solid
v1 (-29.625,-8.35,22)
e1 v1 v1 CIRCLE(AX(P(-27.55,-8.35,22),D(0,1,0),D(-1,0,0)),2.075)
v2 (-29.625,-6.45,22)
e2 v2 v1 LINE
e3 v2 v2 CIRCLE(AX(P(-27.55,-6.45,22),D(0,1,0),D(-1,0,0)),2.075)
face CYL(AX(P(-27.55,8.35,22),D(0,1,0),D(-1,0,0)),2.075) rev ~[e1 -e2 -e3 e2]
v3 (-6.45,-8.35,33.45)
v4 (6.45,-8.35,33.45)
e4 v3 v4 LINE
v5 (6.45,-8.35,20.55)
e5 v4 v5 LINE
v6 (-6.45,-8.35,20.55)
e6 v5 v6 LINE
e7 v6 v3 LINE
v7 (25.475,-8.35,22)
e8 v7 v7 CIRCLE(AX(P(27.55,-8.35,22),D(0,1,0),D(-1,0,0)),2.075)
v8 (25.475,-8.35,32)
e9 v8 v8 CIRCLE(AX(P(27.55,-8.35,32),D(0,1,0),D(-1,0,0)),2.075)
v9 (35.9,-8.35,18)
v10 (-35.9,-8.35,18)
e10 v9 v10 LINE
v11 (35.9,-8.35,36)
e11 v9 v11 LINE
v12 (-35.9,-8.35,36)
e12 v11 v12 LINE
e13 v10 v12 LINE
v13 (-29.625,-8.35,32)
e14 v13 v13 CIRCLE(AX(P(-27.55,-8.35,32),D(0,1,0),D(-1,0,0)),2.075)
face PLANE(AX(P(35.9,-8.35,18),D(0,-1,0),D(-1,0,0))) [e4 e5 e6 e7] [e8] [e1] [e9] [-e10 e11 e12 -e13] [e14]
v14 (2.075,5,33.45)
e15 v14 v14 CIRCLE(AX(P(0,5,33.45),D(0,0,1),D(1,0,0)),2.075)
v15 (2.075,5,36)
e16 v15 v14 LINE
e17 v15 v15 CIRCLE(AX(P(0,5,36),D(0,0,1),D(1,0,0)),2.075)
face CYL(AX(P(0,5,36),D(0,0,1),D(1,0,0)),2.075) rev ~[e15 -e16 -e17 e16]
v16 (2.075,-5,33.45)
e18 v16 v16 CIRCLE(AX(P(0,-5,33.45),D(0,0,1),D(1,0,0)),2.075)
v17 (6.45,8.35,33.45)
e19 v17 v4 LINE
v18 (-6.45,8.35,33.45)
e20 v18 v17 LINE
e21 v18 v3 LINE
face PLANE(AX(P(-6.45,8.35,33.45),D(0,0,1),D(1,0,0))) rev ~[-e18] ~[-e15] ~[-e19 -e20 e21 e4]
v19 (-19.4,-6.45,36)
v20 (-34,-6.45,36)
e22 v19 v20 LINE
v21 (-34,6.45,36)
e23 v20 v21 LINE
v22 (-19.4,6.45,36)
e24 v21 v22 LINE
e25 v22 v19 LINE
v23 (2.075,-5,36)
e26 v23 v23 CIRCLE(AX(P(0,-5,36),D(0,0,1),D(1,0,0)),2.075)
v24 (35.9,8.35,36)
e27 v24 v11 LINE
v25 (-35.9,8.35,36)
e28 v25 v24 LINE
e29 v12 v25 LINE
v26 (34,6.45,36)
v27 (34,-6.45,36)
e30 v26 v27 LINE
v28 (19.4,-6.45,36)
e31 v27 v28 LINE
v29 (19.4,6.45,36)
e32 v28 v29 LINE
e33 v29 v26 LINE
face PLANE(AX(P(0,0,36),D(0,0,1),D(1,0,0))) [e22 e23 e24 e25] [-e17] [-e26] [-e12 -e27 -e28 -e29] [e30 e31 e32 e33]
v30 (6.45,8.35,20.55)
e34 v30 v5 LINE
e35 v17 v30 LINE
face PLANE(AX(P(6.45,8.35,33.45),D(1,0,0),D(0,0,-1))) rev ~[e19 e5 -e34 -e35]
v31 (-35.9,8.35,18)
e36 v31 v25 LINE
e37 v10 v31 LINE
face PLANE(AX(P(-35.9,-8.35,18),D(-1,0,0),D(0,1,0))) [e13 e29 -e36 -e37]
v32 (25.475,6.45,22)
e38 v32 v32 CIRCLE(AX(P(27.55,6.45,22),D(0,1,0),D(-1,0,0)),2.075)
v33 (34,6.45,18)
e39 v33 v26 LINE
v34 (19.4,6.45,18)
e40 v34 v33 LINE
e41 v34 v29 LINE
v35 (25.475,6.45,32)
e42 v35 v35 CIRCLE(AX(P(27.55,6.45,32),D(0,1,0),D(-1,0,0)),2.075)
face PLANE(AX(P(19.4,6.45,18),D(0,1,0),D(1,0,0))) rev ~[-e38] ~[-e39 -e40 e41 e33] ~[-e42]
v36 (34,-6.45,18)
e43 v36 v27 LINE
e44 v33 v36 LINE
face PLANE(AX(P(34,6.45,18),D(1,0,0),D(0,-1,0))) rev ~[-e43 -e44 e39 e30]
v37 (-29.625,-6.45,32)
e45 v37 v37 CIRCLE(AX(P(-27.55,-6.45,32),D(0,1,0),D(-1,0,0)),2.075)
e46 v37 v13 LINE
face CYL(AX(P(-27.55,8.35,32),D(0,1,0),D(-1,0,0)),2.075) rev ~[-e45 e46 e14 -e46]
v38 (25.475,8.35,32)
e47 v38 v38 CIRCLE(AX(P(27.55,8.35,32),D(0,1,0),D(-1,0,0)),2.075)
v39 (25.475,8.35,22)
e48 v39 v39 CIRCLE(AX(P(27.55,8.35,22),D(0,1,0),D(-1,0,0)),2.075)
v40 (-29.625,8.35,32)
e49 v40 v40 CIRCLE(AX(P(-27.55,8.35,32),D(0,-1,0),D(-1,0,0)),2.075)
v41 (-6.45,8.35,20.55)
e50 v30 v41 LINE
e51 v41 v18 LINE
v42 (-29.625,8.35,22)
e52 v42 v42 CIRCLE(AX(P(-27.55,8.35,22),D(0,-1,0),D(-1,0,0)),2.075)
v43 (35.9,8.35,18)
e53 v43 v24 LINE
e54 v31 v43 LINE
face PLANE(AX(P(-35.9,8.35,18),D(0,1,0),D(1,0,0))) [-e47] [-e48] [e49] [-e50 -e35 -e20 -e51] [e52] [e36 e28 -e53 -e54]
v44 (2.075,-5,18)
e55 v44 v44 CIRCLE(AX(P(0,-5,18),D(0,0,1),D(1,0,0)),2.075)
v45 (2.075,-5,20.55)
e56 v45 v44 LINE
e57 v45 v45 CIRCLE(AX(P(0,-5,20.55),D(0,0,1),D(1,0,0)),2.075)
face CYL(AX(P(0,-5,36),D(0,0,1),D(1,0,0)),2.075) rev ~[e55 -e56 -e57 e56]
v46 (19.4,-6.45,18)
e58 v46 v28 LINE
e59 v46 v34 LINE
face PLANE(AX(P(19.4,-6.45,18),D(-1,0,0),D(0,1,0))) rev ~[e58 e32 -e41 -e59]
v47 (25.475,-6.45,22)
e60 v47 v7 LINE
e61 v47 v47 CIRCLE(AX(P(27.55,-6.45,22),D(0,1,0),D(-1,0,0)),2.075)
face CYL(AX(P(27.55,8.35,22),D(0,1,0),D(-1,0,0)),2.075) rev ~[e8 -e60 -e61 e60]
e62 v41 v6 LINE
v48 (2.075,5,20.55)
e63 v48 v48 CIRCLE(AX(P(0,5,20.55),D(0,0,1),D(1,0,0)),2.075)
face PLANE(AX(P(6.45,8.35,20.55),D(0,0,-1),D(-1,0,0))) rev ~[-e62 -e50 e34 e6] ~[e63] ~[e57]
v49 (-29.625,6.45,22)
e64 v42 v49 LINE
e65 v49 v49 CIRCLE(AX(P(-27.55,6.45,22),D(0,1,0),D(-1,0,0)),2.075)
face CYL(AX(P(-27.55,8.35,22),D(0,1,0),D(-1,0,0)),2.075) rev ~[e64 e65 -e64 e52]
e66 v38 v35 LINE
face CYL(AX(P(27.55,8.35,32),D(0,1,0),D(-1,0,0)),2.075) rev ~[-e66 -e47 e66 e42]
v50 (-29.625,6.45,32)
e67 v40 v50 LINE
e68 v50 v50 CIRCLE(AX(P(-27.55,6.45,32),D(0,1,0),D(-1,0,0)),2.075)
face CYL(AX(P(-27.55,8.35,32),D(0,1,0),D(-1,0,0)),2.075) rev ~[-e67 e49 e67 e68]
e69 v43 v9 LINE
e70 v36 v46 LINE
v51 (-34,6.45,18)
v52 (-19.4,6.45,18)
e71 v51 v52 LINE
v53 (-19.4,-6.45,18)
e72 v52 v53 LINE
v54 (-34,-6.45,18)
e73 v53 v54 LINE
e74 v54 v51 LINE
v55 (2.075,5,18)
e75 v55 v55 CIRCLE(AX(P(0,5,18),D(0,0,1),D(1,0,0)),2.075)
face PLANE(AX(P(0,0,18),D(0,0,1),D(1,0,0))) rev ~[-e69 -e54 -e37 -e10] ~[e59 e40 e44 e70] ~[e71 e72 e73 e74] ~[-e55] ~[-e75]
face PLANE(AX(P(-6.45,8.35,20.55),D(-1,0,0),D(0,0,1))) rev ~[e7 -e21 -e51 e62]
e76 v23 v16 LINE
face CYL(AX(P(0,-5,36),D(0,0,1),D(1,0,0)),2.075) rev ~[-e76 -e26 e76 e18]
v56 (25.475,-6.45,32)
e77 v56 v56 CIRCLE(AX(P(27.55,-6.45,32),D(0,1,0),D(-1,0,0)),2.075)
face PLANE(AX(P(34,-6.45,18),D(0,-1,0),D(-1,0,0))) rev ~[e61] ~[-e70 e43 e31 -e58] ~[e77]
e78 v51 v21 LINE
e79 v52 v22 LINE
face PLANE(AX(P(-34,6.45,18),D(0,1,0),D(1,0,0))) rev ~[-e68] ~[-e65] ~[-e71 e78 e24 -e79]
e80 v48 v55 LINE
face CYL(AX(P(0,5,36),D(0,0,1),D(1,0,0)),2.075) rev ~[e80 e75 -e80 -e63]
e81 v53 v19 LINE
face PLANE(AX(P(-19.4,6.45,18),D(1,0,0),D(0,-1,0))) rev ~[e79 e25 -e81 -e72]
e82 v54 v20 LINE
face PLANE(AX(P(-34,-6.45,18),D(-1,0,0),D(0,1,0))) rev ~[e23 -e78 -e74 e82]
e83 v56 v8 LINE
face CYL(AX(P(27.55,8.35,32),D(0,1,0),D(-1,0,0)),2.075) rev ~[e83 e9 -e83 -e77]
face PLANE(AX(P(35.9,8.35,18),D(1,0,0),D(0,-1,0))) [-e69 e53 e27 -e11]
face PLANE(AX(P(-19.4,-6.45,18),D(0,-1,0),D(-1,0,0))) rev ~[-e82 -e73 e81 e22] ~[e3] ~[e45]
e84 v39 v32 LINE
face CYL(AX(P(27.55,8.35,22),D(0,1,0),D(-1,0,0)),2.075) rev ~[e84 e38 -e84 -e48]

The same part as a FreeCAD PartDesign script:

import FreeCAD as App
import Part
import Sketcher

V = App.Vector


def add_polygon(sketch, points):
    """Adds a closed chain of lines whose ends are joined by coincident constraints."""
    first, n = sketch.GeometryCount, len(points)
    for a, b in zip(points, points[1:] + points[:1]):
        sketch.addGeometry(Part.LineSegment(App.Vector(*a, 0), App.Vector(*b, 0)), False)
    for i in range(n):
        sketch.addConstraint(Sketcher.Constraint("Coincident", first + i, 2, first + (i + 1) % n, 1))

doc = App.newDocument("Part")
body = doc.addObject("PartDesign::Body", "Body")

# Sketch on XY plane
sketch1 = body.newObject("Sketcher::SketchObject", "Sketch")
sketch1.AttachmentSupport = (doc.getObject("XY_Plane"), [""])
sketch1.MapMode = "FlatFace"
sketch1.AttachmentOffset = App.Placement(V(0, 0, 18), App.Rotation())
add_polygon(sketch1, [(36, 8), (-36, 8), (-36, -8), (36, -8)])  # lines 0-3
add_polygon(sketch1, [(-19, 6), (-19, -6), (-34, -6), (-34, 6)])  # lines 4-7
add_polygon(sketch1, [(19, 6), (34, 6), (34, -6), (19, -6)])  # lines 8-11
sketch1.addConstraint(Sketcher.Constraint("Horizontal", 0))
sketch1.addConstraint(Sketcher.Constraint("Vertical", 1))
sketch1.addConstraint(Sketcher.Constraint("Horizontal", 2))
sketch1.addConstraint(Sketcher.Constraint("Vertical", 3))
sketch1.addConstraint(Sketcher.Constraint("Vertical", 4))
sketch1.addConstraint(Sketcher.Constraint("Horizontal", 5))
sketch1.addConstraint(Sketcher.Constraint("Vertical", 6))
sketch1.addConstraint(Sketcher.Constraint("Horizontal", 7))
sketch1.addConstraint(Sketcher.Constraint("Horizontal", 8))
sketch1.addConstraint(Sketcher.Constraint("Vertical", 9))
sketch1.addConstraint(Sketcher.Constraint("Horizontal", 10))
sketch1.addConstraint(Sketcher.Constraint("Vertical", 11))
sketch1.addConstraint(Sketcher.Constraint("Symmetric", 0, 2, 2, 2, -1, 1))
sketch1.addConstraint(Sketcher.Constraint("Symmetric", 5, 2, 8, 2, -1, 1))
sketch1.addConstraint(Sketcher.Constraint("Symmetric", 7, 2, 10, 2, -1, 1))
sketch1.addConstraint(Sketcher.Constraint("Horizontal", 7, 2, 8, 2))
sketch1.addConstraint(Sketcher.Constraint("DistanceX", 0, 2, 0, 1, 71.8))
sketch1.addConstraint(Sketcher.Constraint("DistanceX", 5, 2, 5, 1, 14.6))
sketch1.addConstraint(Sketcher.Constraint("DistanceY", 1, 2, 1, 1, 16.7))
sketch1.addConstraint(Sketcher.Constraint("DistanceY", 4, 2, 4, 1, 12.9))
sketch1.addConstraint(Sketcher.Constraint("DistanceX", 5, 2, -1, 1, 34.0))
pad1 = body.newObject("PartDesign::Pad", "Pad")
pad1.Profile = sketch1
pad1.Length = 18

# Sketch on XZ plane
sketch2 = body.newObject("Sketcher::SketchObject", "Sketch001")
sketch2.AttachmentSupport = (doc.getObject("XZ_Plane"), [""])
sketch2.MapMode = "FlatFace"
sketch2.AttachmentOffset = App.Placement(V(0, 0, -8.35), App.Rotation())
sketch2.addGeometry(Part.Circle(V(-27.6, 22, 0), V(0, 0, 1), 2.1), False)
sketch2.addGeometry(Part.Circle(V(-27.6, 32, 0), V(0, 0, 1), 2.1), False)
sketch2.addGeometry(Part.Circle(V(27.6, 22, 0), V(0, 0, 1), 2.1), False)
sketch2.addGeometry(Part.Circle(V(27.6, 32, 0), V(0, 0, 1), 2.1), False)
sketch2.addConstraint(Sketcher.Constraint("Equal", 0, 1))
sketch2.addConstraint(Sketcher.Constraint("Equal", 1, 2))
sketch2.addConstraint(Sketcher.Constraint("Equal", 2, 3))
sketch2.addConstraint(Sketcher.Constraint("Symmetric", 0, 3, 2, 3, -2))
sketch2.addConstraint(Sketcher.Constraint("Symmetric", 1, 3, 3, 3, -2))
sketch2.addConstraint(Sketcher.Constraint("Vertical", 0, 3, 1, 3))
sketch2.addConstraint(Sketcher.Constraint("Diameter", 0, 4.15))
sketch2.addConstraint(Sketcher.Constraint("DistanceY", 0, 3, 1, 3, 10.0))
sketch2.addConstraint(Sketcher.Constraint("DistanceY", -1, 1, 0, 3, 22.0))
sketch2.addConstraint(Sketcher.Constraint("DistanceX", 0, 3, 2, 3, 55.1))
pocket1 = body.newObject("PartDesign::Pocket", "Pocket")
pocket1.Profile = sketch2
pocket1.Length = 16.7
pocket1.Reversed = True

# Sketch on XZ plane
sketch3 = body.newObject("Sketcher::SketchObject", "Sketch002")
sketch3.AttachmentSupport = (doc.getObject("XZ_Plane"), [""])
sketch3.MapMode = "FlatFace"
sketch3.AttachmentOffset = App.Placement(V(0, 0, -8.35), App.Rotation())
add_polygon(sketch3, [(-6, 33), (6, 33), (6, 21), (-6, 21)])  # lines 0-3
sketch3.addConstraint(Sketcher.Constraint("Horizontal", 0))
sketch3.addConstraint(Sketcher.Constraint("Vertical", 1))
sketch3.addConstraint(Sketcher.Constraint("Horizontal", 2))
sketch3.addConstraint(Sketcher.Constraint("Vertical", 3))
sketch3.addConstraint(Sketcher.Constraint("Equal", 2, 1))
sketch3.addConstraint(Sketcher.Constraint("DistanceX", 0, 1, 0, 2, 12.9))
sketch3.addConstraint(Sketcher.Constraint("DistanceX", -1, 1, 0, 2, 6.45))
sketch3.addConstraint(Sketcher.Constraint("DistanceY", -1, 1, 0, 2, 33.45))
pocket2 = body.newObject("PartDesign::Pocket", "Pocket001")
pocket2.Profile = sketch3
pocket2.Length = 16.7
pocket2.Reversed = True

# Sketch on XY plane
sketch4 = body.newObject("Sketcher::SketchObject", "Sketch003")
sketch4.AttachmentSupport = (doc.getObject("XY_Plane"), [""])
sketch4.MapMode = "FlatFace"
sketch4.AttachmentOffset = App.Placement(V(0, 0, 36), App.Rotation())
sketch4.addGeometry(Part.Circle(V(0, 5, 0), V(0, 0, 1), 2.1), False)
sketch4.addGeometry(Part.Circle(V(0, -5, 0), V(0, 0, 1), 2.1), False)
sketch4.addConstraint(Sketcher.Constraint("Equal", 0, 1))
sketch4.addConstraint(Sketcher.Constraint("Symmetric", 0, 3, 1, 3, -1, 1))
sketch4.addConstraint(Sketcher.Constraint("PointOnObject", 0, 3, -2))
sketch4.addConstraint(Sketcher.Constraint("Diameter", 0, 4.15))
sketch4.addConstraint(Sketcher.Constraint("DistanceY", -1, 1, 0, 3, 5.0))
pocket3 = body.newObject("PartDesign::Pocket", "Pocket002")
pocket3.Profile = sketch4
pocket3.Length = 18

doc.recompute()
